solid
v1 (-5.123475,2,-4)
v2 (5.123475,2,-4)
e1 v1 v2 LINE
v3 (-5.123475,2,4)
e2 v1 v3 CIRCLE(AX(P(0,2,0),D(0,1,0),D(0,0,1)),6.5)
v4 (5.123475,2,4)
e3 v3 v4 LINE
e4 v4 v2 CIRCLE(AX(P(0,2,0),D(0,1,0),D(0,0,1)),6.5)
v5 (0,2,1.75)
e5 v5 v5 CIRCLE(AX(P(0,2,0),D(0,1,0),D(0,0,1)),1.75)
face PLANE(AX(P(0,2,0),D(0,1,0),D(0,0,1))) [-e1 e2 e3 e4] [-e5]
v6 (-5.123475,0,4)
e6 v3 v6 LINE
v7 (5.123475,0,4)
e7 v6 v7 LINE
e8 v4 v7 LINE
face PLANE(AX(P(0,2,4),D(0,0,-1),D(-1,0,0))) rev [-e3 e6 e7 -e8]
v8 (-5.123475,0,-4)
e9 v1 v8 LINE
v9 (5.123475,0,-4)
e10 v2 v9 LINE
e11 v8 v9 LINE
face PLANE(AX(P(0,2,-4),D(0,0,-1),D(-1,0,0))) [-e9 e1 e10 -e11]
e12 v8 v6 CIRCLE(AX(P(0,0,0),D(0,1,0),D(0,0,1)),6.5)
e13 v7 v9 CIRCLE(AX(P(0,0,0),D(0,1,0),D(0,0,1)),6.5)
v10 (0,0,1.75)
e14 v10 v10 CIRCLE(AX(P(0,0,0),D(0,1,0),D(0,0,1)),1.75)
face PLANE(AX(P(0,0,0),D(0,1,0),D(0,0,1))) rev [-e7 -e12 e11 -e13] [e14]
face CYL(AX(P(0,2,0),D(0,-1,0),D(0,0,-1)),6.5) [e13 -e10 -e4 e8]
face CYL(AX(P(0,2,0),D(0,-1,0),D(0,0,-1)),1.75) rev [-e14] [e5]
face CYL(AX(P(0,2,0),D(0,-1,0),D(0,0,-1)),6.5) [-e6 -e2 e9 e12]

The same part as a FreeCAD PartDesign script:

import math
import FreeCAD as App
import Part
import Sketcher
Q = App.Units.Quantity

doc = App.newDocument("Part")
params = doc.addObject("Spreadsheet::Sheet", "Params")
for row, (alias, value) in enumerate([
    ("sketch1_radius", "6.5 mm"),
    ("sketch1_radius2", "1.75 mm"),
    ("pad1_length", "2 mm"),
], start=1):
    params.set(f"A{row}", alias)
    params.set(f"B{row}", "=" + value)
    params.setAlias(f"B{row}", alias)

body = doc.addObject("PartDesign::Body", "Body")

# Sketch on XZ plane
sketch1 = doc.addObject("Sketcher::SketchObject", "Sketch")
body.addObject(sketch1)
sketch1.AttachmentSupport = (doc.XZ_Plane, [""])
sketch1.MapMode = "FlatFace"
sketch1.addGeometry([
    Part.ArcOfCircle(Part.Circle(App.Vector(0, 0, 0), App.Vector(0, 0, 1), 6.5), math.radians(-38), math.radians(0)),  # 0
    Part.LineSegment(App.Vector(5.1, -4, 0), App.Vector(-5.1, -4, 0)),  # 1
    Part.ArcOfCircle(Part.Circle(App.Vector(0, 0, 0), App.Vector(0, 0, 1), 6.5), math.radians(180), math.radians(218)),  # 2
    Part.ArcOfCircle(Part.Circle(App.Vector(0, 0, 0), App.Vector(0, 0, 1), 6.5), math.radians(142), math.radians(180)),  # 3
    Part.LineSegment(App.Vector(-5.1, 4, 0), App.Vector(5.1, 4, 0)),  # 4
    Part.ArcOfCircle(Part.Circle(App.Vector(0, 0, 0), App.Vector(0, 0, 1), 6.5), math.radians(0), math.radians(38)),  # 5
    Part.ArcOfCircle(Part.Circle(App.Vector(0, 0, 0), App.Vector(0, 0, 1), 1.8), math.radians(-90), math.radians(0)),  # 6
    Part.ArcOfCircle(Part.Circle(App.Vector(0, 0, 0), App.Vector(0, 0, 1), 1.8), math.radians(0), math.radians(90)),  # 7
    Part.ArcOfCircle(Part.Circle(App.Vector(0, 0, 0), App.Vector(0, 0, 1), 1.8), math.radians(90), math.radians(180)),  # 8
    Part.ArcOfCircle(Part.Circle(App.Vector(0, 0, 0), App.Vector(0, 0, 1), 1.8), math.radians(180), math.radians(270)),  # 9
], False)
sketch1.addConstraint([
    Sketcher.Constraint("Coincident", 0, 1, 1, 1),
    Sketcher.Constraint("Coincident", 1, 2, 2, 2),
    Sketcher.Constraint("Tangent", 2, 1, 3, 2),
    Sketcher.Constraint("Coincident", 3, 1, 4, 1),
    Sketcher.Constraint("Coincident", 4, 2, 5, 2),
    Sketcher.Constraint("Tangent", 5, 1, 0, 2),
    Sketcher.Constraint("Tangent", 6, 2, 7, 1),
    Sketcher.Constraint("Tangent", 7, 2, 8, 1),
    Sketcher.Constraint("Tangent", 8, 2, 9, 1),
    Sketcher.Constraint("Tangent", 9, 2, 6, 1),
    Sketcher.Constraint("Horizontal", 1),
    Sketcher.Constraint("Horizontal", 4),
    Sketcher.Constraint("Coincident", 0, 3, -1, 1),
    Sketcher.Constraint("Coincident", 2, 3, -1, 1),
    Sketcher.Constraint("Coincident", 6, 3, -1, 1),
    Sketcher.Constraint("Equal", 0, 2),
    Sketcher.Constraint("Equal", 2, 3),
    Sketcher.Constraint("Equal", 3, 5),
    Sketcher.Constraint("Equal", 6, 7),
    Sketcher.Constraint("PointOnObject", 2, 1, -1),
    Sketcher.Constraint("PointOnObject", 5, 1, -1),
    Sketcher.Constraint("PointOnObject", 6, 2, -1),
    Sketcher.Constraint("PointOnObject", 7, 2, -2),
    Sketcher.Constraint("PointOnObject", 8, 2, -1),
    Sketcher.Constraint("PointOnObject", 9, 2, -2),
    Sketcher.Constraint("Vertical", 1, 2, 3, 1),
    Sketcher.Constraint("Radius", 0, Q("6.5 mm")),
    Sketcher.Constraint("Radius", 6, Q("1.75 mm")),
    Sketcher.Constraint("DistanceY", 0, 1, -1, 1, Q("4 mm")),
])
sketch1.setExpression("Constraints[26]", "Params.sketch1_radius")
sketch1.setExpression("Constraints[27]", "Params.sketch1_radius2")
pad1 = doc.addObject("PartDesign::Pad", "Pad")
body.addObject(pad1)
pad1.Profile = sketch1
pad1.setExpression("Length", "Params.pad1_length")
pad1.Reversed = True

doc.recompute()
